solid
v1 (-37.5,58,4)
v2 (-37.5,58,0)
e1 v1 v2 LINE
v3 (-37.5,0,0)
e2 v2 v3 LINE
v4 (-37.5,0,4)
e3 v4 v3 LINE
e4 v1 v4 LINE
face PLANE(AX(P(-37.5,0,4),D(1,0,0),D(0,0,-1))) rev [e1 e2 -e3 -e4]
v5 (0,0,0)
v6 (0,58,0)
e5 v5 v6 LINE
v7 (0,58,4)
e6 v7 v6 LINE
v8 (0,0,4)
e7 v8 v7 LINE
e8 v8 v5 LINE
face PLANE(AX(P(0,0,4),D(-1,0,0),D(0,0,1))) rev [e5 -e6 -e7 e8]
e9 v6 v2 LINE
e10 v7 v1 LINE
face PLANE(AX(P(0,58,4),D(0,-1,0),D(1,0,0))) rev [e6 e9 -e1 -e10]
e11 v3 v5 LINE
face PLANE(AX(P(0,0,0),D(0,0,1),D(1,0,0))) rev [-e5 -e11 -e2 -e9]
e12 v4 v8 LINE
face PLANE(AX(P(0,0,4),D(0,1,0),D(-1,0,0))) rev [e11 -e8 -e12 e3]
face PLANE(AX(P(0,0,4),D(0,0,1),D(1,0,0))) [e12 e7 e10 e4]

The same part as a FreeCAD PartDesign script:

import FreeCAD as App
import Part
import Sketcher

doc = App.newDocument("Part")
body = doc.addObject("PartDesign::Body", "Body")

sketch1 = body.newObject("Sketcher::SketchObject", "Sketch")
sketch1.AttachmentSupport = (doc.getObject("XY_Plane"), [""])
sketch1.MapMode = "FlatFace"
sketch1.addGeometry(Part.LineSegment(App.Vector(-37.5, 58, 0), App.Vector(-37.5, 0, 0)), False)
sketch1.addGeometry(Part.LineSegment(App.Vector(-37.5, 0, 0), App.Vector(0, 0, 0)), False)
sketch1.addGeometry(Part.LineSegment(App.Vector(0, 0, 0), App.Vector(0, 58, 0)), False)
sketch1.addGeometry(Part.LineSegment(App.Vector(0, 58, 0), App.Vector(-37.5, 58, 0)), False)
sketch1.addConstraint(Sketcher.Constraint("Coincident", 0, 2, 1, 1))
sketch1.addConstraint(Sketcher.Constraint("Coincident", 1, 2, 2, 1))
sketch1.addConstraint(Sketcher.Constraint("Coincident", 2, 2, 3, 1))
sketch1.addConstraint(Sketcher.Constraint("Coincident", 3, 2, 0, 1))
sketch1.addConstraint(Sketcher.Constraint("Vertical", 0))
sketch1.addConstraint(Sketcher.Constraint("Horizontal", 1))
sketch1.addConstraint(Sketcher.Constraint("Vertical", 2))
sketch1.addConstraint(Sketcher.Constraint("Horizontal", 3))
sketch1.addConstraint(Sketcher.Constraint("Coincident", 1, 2, -1, 1))
sketch1.addConstraint(Sketcher.Constraint("DistanceY", 0, 2, 0, 1, 58.0))
sketch1.addConstraint(Sketcher.Constraint("DistanceX", 1, 1, 1, 2, 37.5))
pad1 = body.newObject("PartDesign::Pad", "Pad")
pad1.Profile = sketch1
pad1.Length = 4

doc.recompute()
